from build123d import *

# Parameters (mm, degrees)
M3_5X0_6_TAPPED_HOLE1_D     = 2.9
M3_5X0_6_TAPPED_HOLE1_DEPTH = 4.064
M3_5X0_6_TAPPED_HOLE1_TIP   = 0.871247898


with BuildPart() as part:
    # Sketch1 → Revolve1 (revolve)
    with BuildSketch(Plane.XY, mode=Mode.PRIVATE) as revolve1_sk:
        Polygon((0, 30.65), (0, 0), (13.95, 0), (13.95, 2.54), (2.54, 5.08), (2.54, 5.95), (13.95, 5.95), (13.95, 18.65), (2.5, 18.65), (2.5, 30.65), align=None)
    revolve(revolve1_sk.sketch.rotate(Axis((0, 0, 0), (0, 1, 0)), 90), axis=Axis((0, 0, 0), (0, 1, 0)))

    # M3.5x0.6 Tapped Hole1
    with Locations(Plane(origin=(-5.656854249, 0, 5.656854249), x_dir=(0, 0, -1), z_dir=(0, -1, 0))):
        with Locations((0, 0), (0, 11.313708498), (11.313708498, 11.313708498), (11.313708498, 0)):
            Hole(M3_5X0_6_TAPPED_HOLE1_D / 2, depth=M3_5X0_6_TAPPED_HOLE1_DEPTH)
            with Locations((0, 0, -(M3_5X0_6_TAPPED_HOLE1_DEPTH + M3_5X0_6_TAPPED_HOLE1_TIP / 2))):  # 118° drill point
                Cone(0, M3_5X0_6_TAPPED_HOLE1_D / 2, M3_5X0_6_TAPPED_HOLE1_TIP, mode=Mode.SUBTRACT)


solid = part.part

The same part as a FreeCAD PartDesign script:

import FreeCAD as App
import Part
import Sketcher

V = App.Vector

doc = App.newDocument("Part")
params = doc.addObject("Spreadsheet::Sheet", "Params")
for row, (alias, value) in enumerate([
    ("sketch1_height", "12 mm"),
    ("sketch1_width", "2.5 mm"),
    ("sketch1_height2", "12.7 mm"),
    ("sketch1_width2", "13.95 mm"),
    ("sketch1_width3", "11.41 mm"),
    ("revolution_angle", "360 deg"),
    ("sketch2_diameter", "2.9 mm"),
    ("hole_diameter", "2.9 mm"),
    ("hole_depth", "4.064 mm"),
], start=1):
    params.set(f"A{row}", alias)
    params.set(f"B{row}", "=" + value)
    params.setAlias(f"B{row}", alias)

body = doc.addObject("PartDesign::Body", "Body")

# Sketch on XY plane
sketch1 = doc.addObject("Sketcher::SketchObject", "Sketch")
body.addObject(sketch1)
sketch1.AttachmentSupport = (doc.XY_Plane, [""])
sketch1.MapMode = "FlatFace"
sketch1.addGeometry(Part.LineSegment(V(0, 30.65, 0), V(0, 0, 0)), False)
sketch1.addGeometry(Part.LineSegment(V(0, 0, 0), V(13.95, 0, 0)), False)
sketch1.addGeometry(Part.LineSegment(V(13.95, 0, 0), V(13.95, 2.54, 0)), False)
sketch1.addGeometry(Part.LineSegment(V(13.95, 2.54, 0), V(2.54, 5.08, 0)), False)
sketch1.addGeometry(Part.LineSegment(V(2.54, 5.08, 0), V(2.54, 5.95, 0)), False)
sketch1.addGeometry(Part.LineSegment(V(2.54, 5.95, 0), V(13.95, 5.95, 0)), False)
sketch1.addGeometry(Part.LineSegment(V(13.95, 5.95, 0), V(13.95, 18.65, 0)), False)
sketch1.addGeometry(Part.LineSegment(V(13.95, 18.65, 0), V(2.5, 18.65, 0)), False)
sketch1.addGeometry(Part.LineSegment(V(2.5, 18.65, 0), V(2.5, 30.65, 0)), False)
sketch1.addGeometry(Part.LineSegment(V(2.5, 30.65, 0), V(0, 30.65, 0)), False)
sketch1.addConstraint(Sketcher.Constraint("Coincident", 0, 2, 1, 1))
sketch1.addConstraint(Sketcher.Constraint("Coincident", 1, 2, 2, 1))
sketch1.addConstraint(Sketcher.Constraint("Coincident", 2, 2, 3, 1))
sketch1.addConstraint(Sketcher.Constraint("Coincident", 3, 2, 4, 1))
sketch1.addConstraint(Sketcher.Constraint("Coincident", 4, 2, 5, 1))
sketch1.addConstraint(Sketcher.Constraint("Coincident", 5, 2, 6, 1))
sketch1.addConstraint(Sketcher.Constraint("Coincident", 6, 2, 7, 1))
sketch1.addConstraint(Sketcher.Constraint("Coincident", 7, 2, 8, 1))
sketch1.addConstraint(Sketcher.Constraint("Coincident", 8, 2, 9, 1))
sketch1.addConstraint(Sketcher.Constraint("Coincident", 9, 2, 0, 1))
sketch1.addConstraint(Sketcher.Constraint("Vertical", 0))
sketch1.addConstraint(Sketcher.Constraint("Horizontal", 1))
sketch1.addConstraint(Sketcher.Constraint("Vertical", 2))
sketch1.addConstraint(Sketcher.Constraint("Vertical", 4))
sketch1.addConstraint(Sketcher.Constraint("Horizontal", 5))
sketch1.addConstraint(Sketcher.Constraint("Vertical", 6))
sketch1.addConstraint(Sketcher.Constraint("Horizontal", 7))
sketch1.addConstraint(Sketcher.Constraint("Vertical", 8))
sketch1.addConstraint(Sketcher.Constraint("Horizontal", 9))
sketch1.addConstraint(Sketcher.Constraint("Coincident", 0, 2, -1, 1))
sketch1.addConstraint(Sketcher.Constraint("Vertical", 2, 2, 5, 2))
sketch1.addConstraint(Sketcher.Constraint("DistanceY", 8, 1, 8, 2, 12.0))
sketch1.addConstraint(Sketcher.Constraint("DistanceX", 9, 2, 9, 1, 2.5))
sketch1.addConstraint(Sketcher.Constraint("DistanceY", 6, 1, 6, 2, 12.7))
sketch1.addConstraint(Sketcher.Constraint("DistanceX", 1, 1, 1, 2, 13.95))
sketch1.addConstraint(Sketcher.Constraint("DistanceX", 5, 1, 5, 2, 11.41))
sketch1.addConstraint(Sketcher.Constraint("DistanceY", 0, 2, 0, 1, 30.65))
sketch1.addConstraint(Sketcher.Constraint("DistanceY", 2, 1, 2, 2, 2.54))
sketch1.addConstraint(Sketcher.Constraint("DistanceY", 4, 1, 4, 2, 0.87))
sketch1.setExpression("Constraints[21]", "Params.sketch1_height")
sketch1.setExpression("Constraints[22]", "Params.sketch1_width")
sketch1.setExpression("Constraints[23]", "Params.sketch1_height2")
sketch1.setExpression("Constraints[24]", "Params.sketch1_width2")
sketch1.setExpression("Constraints[25]", "Params.sketch1_width3")
revolution = doc.addObject("PartDesign::Revolution", "Revolution")
body.addObject(revolution)
revolution.Profile = sketch1
revolution.ReferenceAxis = (sketch1, ["V_Axis"])
revolution.setExpression("Angle", "Params.revolution_angle")

# Sketch on XZ plane
sketch2 = doc.addObject("Sketcher::SketchObject", "Sketch001")
body.addObject(sketch2)
sketch2.AttachmentSupport = (doc.XZ_Plane, [""])
sketch2.MapMode = "FlatFace"
sketch2.addGeometry(Part.Circle(V(-5.656854, 5.656854, 0), V(0, 0, 1), 1.45), False)
sketch2.addGeometry(Part.Circle(V(5.656854, 5.656854, 0), V(0, 0, 1), 1.45), False)
sketch2.addGeometry(Part.Circle(V(5.656854, -5.656854, 0), V(0, 0, 1), 1.45), False)
sketch2.addGeometry(Part.Circle(V(-5.656854, -5.656854, 0), V(0, 0, 1), 1.45), False)
sketch2.addConstraint(Sketcher.Constraint("Equal", 0, 1))
sketch2.addConstraint(Sketcher.Constraint("Equal", 1, 2))
sketch2.addConstraint(Sketcher.Constraint("Equal", 2, 3))
sketch2.addConstraint(Sketcher.Constraint("Symmetric", 0, 3, 2, 3, -1, 1))
sketch2.addConstraint(Sketcher.Constraint("Symmetric", 1, 3, 3, 3, -1, 1))
sketch2.addConstraint(Sketcher.Constraint("Symmetric", 0, 3, 1, 3, -2))
sketch2.addConstraint(Sketcher.Constraint("Diameter", 0, 2.9))
sketch2.addConstraint(Sketcher.Constraint("DistanceX", 0, 3, 1, 3, 11.313708))
sketch2.addConstraint(Sketcher.Constraint("DistanceY", 2, 3, 1, 3, 11.313708))
sketch2.setExpression("Constraints[6]", "Params.sketch2_diameter")
doc.recompute()
hole = doc.addObject("PartDesign::Hole", "Hole")
body.addObject(hole)
hole.Profile = sketch2
hole.ThreadType = "None"
hole.setExpression("Diameter", "Params.hole_diameter")
hole.DepthType = "Dimension"
hole.setExpression("Depth", "Params.hole_depth")
hole.DrillPoint = "Angled"
hole.DrillPointAngle = 118

doc.recompute()
